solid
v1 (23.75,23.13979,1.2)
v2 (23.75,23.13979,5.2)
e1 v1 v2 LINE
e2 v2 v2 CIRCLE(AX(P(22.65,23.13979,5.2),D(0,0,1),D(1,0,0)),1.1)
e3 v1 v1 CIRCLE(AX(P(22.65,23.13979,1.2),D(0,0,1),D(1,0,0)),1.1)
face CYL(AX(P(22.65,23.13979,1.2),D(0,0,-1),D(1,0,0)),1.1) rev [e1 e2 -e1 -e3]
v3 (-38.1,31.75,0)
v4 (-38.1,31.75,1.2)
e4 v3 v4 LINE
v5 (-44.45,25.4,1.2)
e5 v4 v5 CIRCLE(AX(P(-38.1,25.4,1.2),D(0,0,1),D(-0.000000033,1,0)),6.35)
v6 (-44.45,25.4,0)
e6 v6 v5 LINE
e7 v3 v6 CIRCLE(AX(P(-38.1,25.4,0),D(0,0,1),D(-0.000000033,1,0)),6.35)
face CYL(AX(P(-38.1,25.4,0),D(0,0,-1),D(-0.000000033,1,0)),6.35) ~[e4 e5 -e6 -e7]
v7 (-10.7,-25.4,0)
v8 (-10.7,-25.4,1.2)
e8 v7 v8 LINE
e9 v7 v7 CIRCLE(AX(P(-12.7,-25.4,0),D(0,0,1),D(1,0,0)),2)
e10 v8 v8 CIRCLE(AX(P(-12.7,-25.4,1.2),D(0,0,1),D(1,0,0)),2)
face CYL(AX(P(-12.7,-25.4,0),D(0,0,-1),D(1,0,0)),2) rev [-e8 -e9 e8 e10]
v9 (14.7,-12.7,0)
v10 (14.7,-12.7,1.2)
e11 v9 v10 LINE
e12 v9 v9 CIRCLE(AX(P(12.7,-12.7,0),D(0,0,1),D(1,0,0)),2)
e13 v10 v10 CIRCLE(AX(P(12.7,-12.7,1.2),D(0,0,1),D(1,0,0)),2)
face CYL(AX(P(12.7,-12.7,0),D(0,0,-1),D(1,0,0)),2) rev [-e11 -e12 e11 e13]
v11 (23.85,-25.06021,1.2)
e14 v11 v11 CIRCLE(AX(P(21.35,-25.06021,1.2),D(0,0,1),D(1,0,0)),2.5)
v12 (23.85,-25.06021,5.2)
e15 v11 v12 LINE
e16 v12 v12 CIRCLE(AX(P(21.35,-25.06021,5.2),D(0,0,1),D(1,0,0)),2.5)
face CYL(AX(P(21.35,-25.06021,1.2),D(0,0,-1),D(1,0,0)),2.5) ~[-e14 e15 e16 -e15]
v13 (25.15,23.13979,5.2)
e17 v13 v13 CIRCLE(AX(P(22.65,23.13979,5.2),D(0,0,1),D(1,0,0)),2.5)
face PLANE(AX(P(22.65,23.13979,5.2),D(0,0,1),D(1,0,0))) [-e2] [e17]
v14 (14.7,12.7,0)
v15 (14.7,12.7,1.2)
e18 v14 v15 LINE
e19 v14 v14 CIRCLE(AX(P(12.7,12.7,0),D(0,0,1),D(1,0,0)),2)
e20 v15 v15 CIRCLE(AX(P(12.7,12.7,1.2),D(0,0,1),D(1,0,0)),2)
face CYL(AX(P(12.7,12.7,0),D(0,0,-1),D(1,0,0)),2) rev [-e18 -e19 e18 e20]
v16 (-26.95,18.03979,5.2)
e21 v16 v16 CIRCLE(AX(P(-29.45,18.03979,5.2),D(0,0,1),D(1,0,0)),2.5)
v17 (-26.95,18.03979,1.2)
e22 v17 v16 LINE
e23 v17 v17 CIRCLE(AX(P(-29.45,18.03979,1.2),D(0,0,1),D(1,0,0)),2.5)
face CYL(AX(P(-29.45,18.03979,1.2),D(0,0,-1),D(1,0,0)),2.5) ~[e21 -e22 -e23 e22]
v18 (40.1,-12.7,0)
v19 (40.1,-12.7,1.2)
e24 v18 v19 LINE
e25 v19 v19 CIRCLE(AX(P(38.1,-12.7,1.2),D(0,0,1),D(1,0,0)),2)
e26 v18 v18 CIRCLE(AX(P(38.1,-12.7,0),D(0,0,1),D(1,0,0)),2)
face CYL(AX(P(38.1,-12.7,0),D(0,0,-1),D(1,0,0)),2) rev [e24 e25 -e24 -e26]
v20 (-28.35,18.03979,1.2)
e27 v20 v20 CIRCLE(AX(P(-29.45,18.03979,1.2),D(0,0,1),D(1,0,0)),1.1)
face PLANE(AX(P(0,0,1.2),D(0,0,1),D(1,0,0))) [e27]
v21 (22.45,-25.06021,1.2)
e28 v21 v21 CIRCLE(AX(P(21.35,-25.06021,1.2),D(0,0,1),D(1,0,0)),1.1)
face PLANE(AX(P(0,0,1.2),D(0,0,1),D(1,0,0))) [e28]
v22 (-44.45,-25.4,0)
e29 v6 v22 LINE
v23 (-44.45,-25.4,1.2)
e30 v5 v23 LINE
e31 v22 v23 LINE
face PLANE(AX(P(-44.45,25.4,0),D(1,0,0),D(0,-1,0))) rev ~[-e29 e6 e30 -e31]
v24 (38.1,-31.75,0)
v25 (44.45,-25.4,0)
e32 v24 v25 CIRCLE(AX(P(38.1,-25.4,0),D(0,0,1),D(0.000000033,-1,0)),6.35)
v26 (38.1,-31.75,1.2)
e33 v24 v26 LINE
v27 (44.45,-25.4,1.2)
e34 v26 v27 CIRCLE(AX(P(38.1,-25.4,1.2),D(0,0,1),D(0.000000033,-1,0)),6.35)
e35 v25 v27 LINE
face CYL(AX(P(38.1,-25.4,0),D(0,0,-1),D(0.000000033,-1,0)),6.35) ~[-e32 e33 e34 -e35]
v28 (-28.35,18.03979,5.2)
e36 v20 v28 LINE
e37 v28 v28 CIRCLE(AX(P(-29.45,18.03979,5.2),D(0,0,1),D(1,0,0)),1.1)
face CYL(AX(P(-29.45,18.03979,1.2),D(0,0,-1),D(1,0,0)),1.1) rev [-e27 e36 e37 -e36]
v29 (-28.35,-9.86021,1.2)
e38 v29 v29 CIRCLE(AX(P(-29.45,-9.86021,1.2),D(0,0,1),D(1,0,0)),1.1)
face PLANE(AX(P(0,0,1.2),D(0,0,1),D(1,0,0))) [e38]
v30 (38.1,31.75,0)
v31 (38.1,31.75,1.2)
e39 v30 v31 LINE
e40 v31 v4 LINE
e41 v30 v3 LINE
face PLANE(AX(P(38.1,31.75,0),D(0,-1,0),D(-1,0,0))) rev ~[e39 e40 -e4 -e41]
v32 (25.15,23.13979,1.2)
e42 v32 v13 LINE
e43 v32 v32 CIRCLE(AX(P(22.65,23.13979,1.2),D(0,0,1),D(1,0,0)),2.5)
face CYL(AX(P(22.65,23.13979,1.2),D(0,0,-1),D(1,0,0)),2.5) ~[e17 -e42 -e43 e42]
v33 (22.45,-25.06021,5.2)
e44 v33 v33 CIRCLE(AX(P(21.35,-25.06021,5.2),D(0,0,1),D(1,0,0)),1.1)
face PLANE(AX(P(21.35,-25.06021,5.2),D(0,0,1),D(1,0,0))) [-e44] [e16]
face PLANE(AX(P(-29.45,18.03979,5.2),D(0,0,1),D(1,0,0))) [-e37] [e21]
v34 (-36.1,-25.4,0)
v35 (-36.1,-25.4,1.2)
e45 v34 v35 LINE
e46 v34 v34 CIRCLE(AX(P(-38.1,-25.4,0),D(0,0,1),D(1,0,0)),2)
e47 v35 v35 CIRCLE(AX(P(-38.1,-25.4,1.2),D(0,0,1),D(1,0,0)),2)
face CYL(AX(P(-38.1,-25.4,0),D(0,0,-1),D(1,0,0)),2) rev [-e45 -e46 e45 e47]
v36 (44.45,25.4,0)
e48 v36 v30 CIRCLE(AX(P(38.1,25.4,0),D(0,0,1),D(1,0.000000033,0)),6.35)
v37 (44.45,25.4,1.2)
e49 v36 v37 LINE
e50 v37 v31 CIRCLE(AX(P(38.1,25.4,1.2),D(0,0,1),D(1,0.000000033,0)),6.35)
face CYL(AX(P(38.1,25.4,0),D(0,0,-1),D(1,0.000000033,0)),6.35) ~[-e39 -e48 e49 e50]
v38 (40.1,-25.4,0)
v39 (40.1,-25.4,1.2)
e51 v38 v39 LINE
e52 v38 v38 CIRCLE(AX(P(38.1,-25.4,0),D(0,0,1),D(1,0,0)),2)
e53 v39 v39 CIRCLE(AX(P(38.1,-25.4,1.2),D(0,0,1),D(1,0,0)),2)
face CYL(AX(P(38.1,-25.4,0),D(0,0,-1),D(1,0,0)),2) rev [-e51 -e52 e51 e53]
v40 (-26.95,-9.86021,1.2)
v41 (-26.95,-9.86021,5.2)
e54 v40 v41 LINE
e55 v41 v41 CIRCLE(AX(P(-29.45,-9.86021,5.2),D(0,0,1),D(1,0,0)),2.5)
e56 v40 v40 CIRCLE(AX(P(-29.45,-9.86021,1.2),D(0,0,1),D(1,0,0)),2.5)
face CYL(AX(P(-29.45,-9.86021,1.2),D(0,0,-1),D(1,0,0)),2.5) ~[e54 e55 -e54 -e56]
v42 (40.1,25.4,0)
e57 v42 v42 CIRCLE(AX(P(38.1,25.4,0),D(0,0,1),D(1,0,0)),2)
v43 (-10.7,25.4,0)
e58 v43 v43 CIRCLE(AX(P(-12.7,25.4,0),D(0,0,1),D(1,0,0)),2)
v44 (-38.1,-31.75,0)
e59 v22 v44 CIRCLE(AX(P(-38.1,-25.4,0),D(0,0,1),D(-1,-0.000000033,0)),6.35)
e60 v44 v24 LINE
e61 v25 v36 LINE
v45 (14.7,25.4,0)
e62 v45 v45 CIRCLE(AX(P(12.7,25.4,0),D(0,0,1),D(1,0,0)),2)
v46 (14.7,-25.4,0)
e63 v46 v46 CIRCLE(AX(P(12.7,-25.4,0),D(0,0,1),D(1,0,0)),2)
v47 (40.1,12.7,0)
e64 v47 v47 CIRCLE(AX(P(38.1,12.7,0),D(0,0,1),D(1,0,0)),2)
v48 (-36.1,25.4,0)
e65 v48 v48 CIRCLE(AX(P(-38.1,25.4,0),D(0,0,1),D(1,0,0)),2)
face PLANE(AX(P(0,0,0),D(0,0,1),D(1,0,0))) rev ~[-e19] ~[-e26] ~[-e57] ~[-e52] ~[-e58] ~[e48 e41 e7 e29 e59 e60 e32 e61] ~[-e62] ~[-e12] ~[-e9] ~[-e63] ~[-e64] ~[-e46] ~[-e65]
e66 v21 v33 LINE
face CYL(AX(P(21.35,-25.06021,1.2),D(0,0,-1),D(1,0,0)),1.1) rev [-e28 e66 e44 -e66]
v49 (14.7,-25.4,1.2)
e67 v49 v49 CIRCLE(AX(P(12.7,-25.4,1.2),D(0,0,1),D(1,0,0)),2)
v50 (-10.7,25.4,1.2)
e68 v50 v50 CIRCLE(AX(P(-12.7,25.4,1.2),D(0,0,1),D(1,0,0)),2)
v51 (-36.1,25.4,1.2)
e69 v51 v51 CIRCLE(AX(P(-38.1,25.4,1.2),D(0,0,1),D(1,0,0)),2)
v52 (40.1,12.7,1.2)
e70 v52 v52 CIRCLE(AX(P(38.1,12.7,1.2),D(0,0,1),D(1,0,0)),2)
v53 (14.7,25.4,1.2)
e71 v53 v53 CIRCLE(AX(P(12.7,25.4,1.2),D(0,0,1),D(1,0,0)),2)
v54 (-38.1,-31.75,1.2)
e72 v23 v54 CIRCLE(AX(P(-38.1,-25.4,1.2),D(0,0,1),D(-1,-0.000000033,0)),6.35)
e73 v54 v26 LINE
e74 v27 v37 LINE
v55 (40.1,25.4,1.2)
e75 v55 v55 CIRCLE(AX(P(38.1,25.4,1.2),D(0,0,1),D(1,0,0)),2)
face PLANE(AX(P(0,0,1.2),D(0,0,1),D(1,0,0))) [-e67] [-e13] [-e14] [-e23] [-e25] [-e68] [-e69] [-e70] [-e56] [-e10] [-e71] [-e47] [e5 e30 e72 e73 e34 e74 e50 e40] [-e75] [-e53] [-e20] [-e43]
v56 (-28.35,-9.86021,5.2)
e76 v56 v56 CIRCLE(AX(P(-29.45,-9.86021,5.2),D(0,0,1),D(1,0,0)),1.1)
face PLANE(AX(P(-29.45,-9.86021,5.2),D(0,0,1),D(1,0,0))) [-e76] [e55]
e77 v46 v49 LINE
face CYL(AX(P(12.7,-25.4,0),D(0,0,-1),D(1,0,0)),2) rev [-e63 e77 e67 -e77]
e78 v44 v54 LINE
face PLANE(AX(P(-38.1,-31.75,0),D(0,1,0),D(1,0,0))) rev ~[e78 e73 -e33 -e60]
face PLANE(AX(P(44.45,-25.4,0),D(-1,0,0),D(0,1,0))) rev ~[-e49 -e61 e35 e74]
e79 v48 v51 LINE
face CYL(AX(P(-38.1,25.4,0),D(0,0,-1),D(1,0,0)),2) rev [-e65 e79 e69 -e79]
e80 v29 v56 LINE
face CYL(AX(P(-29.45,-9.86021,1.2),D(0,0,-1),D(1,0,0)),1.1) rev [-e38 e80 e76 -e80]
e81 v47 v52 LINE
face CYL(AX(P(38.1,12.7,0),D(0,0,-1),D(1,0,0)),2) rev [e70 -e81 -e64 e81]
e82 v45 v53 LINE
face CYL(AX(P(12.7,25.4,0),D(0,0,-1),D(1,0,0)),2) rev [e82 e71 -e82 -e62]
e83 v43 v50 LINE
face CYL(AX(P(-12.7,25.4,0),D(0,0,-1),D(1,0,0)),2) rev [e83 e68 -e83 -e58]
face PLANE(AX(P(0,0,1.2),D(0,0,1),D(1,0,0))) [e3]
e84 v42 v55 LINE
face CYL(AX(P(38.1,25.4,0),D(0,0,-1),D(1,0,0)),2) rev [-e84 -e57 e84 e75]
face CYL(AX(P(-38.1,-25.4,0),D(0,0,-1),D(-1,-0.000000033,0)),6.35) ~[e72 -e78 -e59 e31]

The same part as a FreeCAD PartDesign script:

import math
import FreeCAD as App
import Part
import Sketcher
from FreeCAD import Vector
Q = App.Units.Quantity

doc = App.newDocument("Part")
body = doc.addObject("PartDesign::Body", "Body")

# Sketch on XY plane
sketch1 = doc.addObject("Sketcher::SketchObject", "Sketch")
body.addObject(sketch1)
sketch1.AttachmentSupport = (doc.XY_Plane, [""])
sketch1.MapMode = "FlatFace"
sketch1.addGeometry([
    Part.LineSegment(Vector(-38.1, -31.75, 0), Vector(38.1, -31.75, 0)),  # 0
    Part.ArcOfCircle(Part.Circle(Vector(38.1, -25.4, 0), Vector(0, 0, 1), 6.35), math.radians(-89.999998), math.radians(-0.000002)),  # 1
    Part.LineSegment(Vector(44.45, -25.4, 0), Vector(44.45, 25.4, 0)),  # 2
    Part.ArcOfCircle(Part.Circle(Vector(38.1, 25.4, 0), Vector(0, 0, 1), 6.35), math.radians(0.000002), math.radians(89.999998)),  # 3
    Part.LineSegment(Vector(38.1, 31.75, 0), Vector(-38.1, 31.75, 0)),  # 4
    Part.ArcOfCircle(Part.Circle(Vector(-38.1, 25.4, 0), Vector(0, 0, 1), 6.35), math.radians(90.000002), math.radians(179.999998)),  # 5
    Part.LineSegment(Vector(-44.45, 25.4, 0), Vector(-44.45, -25.4, 0)),  # 6
    Part.ArcOfCircle(Part.Circle(Vector(-38.1, -25.4, 0), Vector(0, 0, 1), 6.35), math.radians(-179.999998), math.radians(-90.000002)),  # 7
    Part.Circle(Vector(-38.1, -25.4, 0), Vector(0, 0, 1), 2),  # 8
    Part.Circle(Vector(-12.7, -25.4, 0), Vector(0, 0, 1), 2),  # 9
    Part.Circle(Vector(12.7, -25.4, 0), Vector(0, 0, 1), 2),  # 10
    Part.Circle(Vector(38.1, -25.4, 0), Vector(0, 0, 1), 2),  # 11
    Part.Circle(Vector(12.7, -12.7, 0), Vector(0, 0, 1), 2),  # 12
    Part.Circle(Vector(38.1, -12.7, 0), Vector(0, 0, 1), 2),  # 13
    Part.Circle(Vector(-38.1, 25.4, 0), Vector(0, 0, 1), 2),  # 14
    Part.Circle(Vector(-12.7, 25.4, 0), Vector(0, 0, 1), 2),  # 15
    Part.Circle(Vector(12.7, 12.7, 0), Vector(0, 0, 1), 2),  # 16
    Part.Circle(Vector(38.1, 12.7, 0), Vector(0, 0, 1), 2),  # 17
    Part.Circle(Vector(12.7, 25.4, 0), Vector(0, 0, 1), 2),  # 18
    Part.Circle(Vector(38.1, 25.4, 0), Vector(0, 0, 1), 2),  # 19
], False)
sketch1.addConstraint([
    Sketcher.Constraint("Tangent", 0, 2, 1, 1),
    Sketcher.Constraint("Tangent", 1, 2, 2, 1),
    Sketcher.Constraint("Tangent", 2, 2, 3, 1),
    Sketcher.Constraint("Tangent", 3, 2, 4, 1),
    Sketcher.Constraint("Tangent", 4, 2, 5, 1),
    Sketcher.Constraint("Tangent", 5, 2, 6, 1),
    Sketcher.Constraint("Tangent", 6, 2, 7, 1),
    Sketcher.Constraint("Tangent", 7, 2, 0, 1),
    Sketcher.Constraint("Horizontal", 0),
    Sketcher.Constraint("Vertical", 2),
    Sketcher.Constraint("Horizontal", 4),
    Sketcher.Constraint("Vertical", 6),
    Sketcher.Constraint("Coincident", 8, 3, 7, 3),
    Sketcher.Constraint("Coincident", 11, 3, 1, 3),
    Sketcher.Constraint("Coincident", 14, 3, 5, 3),
    Sketcher.Constraint("Coincident", 19, 3, 3, 3),
    Sketcher.Constraint("Equal", 1, 3),
    Sketcher.Constraint("Equal", 3, 5),
    Sketcher.Constraint("Equal", 5, 7),
    Sketcher.Constraint("Equal", 8, 9),
    Sketcher.Constraint("Equal", 9, 10),
    Sketcher.Constraint("Equal", 10, 11),
    Sketcher.Constraint("Equal", 11, 12),
    Sketcher.Constraint("Equal", 12, 13),
    Sketcher.Constraint("Equal", 13, 14),
    Sketcher.Constraint("Equal", 14, 15),
    Sketcher.Constraint("Equal", 15, 16),
    Sketcher.Constraint("Equal", 16, 17),
    Sketcher.Constraint("Equal", 17, 18),
    Sketcher.Constraint("Equal", 18, 19),
    Sketcher.Constraint("Symmetric", 1, 3, 5, 3, -1, 1),
    Sketcher.Constraint("Symmetric", 10, 3, 15, 3, -1, 1),
    Sketcher.Constraint("Symmetric", 9, 3, 18, 3, -1, 1),
    Sketcher.Constraint("Symmetric", 9, 3, 10, 3, -2),
    Sketcher.Constraint("Symmetric", 12, 3, 16, 3, -1),
    Sketcher.Constraint("Symmetric", 13, 3, 17, 3, -1),
    Sketcher.Constraint("Horizontal", 8, 3, 9, 3),
    Sketcher.Constraint("Horizontal", 12, 3, 13, 3),
    Sketcher.Constraint("Vertical", 10, 3, 12, 3),
    Sketcher.Constraint("Vertical", 11, 3, 13, 3),
    Sketcher.Constraint("Diameter", 8, Q("4 mm")),
    Sketcher.Constraint("Radius", 1, Q("6.35 mm")),
    Sketcher.Constraint("DistanceX", 0, 1, 0, 2, Q("76.2 mm")),
    Sketcher.Constraint("DistanceY", 2, 1, 2, 2, Q("50.8 mm")),
    Sketcher.Constraint("DistanceX", 9, 3, -1, 1, Q("12.7 mm")),
    Sketcher.Constraint("DistanceY", 12, 3, -1, 1, Q("12.7 mm")),
])
pad1 = doc.addObject("PartDesign::Pad", "Pad")
body.addObject(pad1)
pad1.Profile = sketch1
pad1.Length = 1.2

# Sketch on XY plane
sketch2 = doc.addObject("Sketcher::SketchObject", "Sketch001")
body.addObject(sketch2)
sketch2.AttachmentSupport = (doc.XY_Plane, [""])
sketch2.MapMode = "FlatFace"
sketch2.AttachmentOffset = App.Placement(Vector(0, 0, 1.2), App.Rotation())
sketch2.addGeometry([
    Part.Circle(Vector(-29.45, 18.03979, 0), Vector(0, 0, 1), 2.5),  # 0
    Part.Circle(Vector(-29.45, 18.03979, 0), Vector(0, 0, 1), 1.1),  # 1
    Part.Circle(Vector(-29.45, -9.86021, 0), Vector(0, 0, 1), 2.5),  # 2
    Part.Circle(Vector(-29.45, -9.86021, 0), Vector(0, 0, 1), 1.1),  # 3
    Part.Circle(Vector(21.35, -25.06021, 0), Vector(0, 0, 1), 2.5),  # 4
    Part.Circle(Vector(21.35, -25.06021, 0), Vector(0, 0, 1), 1.1),  # 5
    Part.Circle(Vector(22.65, 23.13979, 0), Vector(0, 0, 1), 2.5),  # 6
    Part.Circle(Vector(22.65, 23.13979, 0), Vector(0, 0, 1), 1.1),  # 7
], False)
sketch2.addConstraint([
    Sketcher.Constraint("Coincident", 1, 3, 0, 3),
    Sketcher.Constraint("Coincident", 3, 3, 2, 3),
    Sketcher.Constraint("Coincident", 5, 3, 4, 3),
    Sketcher.Constraint("Coincident", 7, 3, 6, 3),
    Sketcher.Constraint("Equal", 0, 2),
    Sketcher.Constraint("Equal", 1, 3),
    Sketcher.Constraint("Equal", 2, 4),
    Sketcher.Constraint("Equal", 3, 5),
    Sketcher.Constraint("Equal", 4, 6),
    Sketcher.Constraint("Equal", 5, 7),
    Sketcher.Constraint("Vertical", 1, 3, 2, 3),
    Sketcher.Constraint("Diameter", 0, Q("5 mm")),
    Sketcher.Constraint("Diameter", 1, Q("2.2 mm")),
    Sketcher.Constraint("DistanceY", 2, 3, 6, 3, Q("33 mm")),
    Sketcher.Constraint("DistanceY", 2, 3, 0, 3, Q("27.9 mm")),
    Sketcher.Constraint("DistanceX", 2, 3, 4, 3, Q("50.8 mm")),
    Sketcher.Constraint("DistanceY", 4, 3, 2, 3, Q("15.2 mm")),
    Sketcher.Constraint("DistanceX", 4, 3, 6, 3, Q("1.3 mm")),
    Sketcher.Constraint("DistanceX", 0, 3, -1, 1, Q("29.45 mm")),
    Sketcher.Constraint("DistanceY", -1, 1, 0, 3, Q("18.03979 mm")),
])
pad2 = doc.addObject("PartDesign::Pad", "Pad001")
body.addObject(pad2)
pad2.Profile = sketch2
pad2.Length = 4

doc.recompute()
